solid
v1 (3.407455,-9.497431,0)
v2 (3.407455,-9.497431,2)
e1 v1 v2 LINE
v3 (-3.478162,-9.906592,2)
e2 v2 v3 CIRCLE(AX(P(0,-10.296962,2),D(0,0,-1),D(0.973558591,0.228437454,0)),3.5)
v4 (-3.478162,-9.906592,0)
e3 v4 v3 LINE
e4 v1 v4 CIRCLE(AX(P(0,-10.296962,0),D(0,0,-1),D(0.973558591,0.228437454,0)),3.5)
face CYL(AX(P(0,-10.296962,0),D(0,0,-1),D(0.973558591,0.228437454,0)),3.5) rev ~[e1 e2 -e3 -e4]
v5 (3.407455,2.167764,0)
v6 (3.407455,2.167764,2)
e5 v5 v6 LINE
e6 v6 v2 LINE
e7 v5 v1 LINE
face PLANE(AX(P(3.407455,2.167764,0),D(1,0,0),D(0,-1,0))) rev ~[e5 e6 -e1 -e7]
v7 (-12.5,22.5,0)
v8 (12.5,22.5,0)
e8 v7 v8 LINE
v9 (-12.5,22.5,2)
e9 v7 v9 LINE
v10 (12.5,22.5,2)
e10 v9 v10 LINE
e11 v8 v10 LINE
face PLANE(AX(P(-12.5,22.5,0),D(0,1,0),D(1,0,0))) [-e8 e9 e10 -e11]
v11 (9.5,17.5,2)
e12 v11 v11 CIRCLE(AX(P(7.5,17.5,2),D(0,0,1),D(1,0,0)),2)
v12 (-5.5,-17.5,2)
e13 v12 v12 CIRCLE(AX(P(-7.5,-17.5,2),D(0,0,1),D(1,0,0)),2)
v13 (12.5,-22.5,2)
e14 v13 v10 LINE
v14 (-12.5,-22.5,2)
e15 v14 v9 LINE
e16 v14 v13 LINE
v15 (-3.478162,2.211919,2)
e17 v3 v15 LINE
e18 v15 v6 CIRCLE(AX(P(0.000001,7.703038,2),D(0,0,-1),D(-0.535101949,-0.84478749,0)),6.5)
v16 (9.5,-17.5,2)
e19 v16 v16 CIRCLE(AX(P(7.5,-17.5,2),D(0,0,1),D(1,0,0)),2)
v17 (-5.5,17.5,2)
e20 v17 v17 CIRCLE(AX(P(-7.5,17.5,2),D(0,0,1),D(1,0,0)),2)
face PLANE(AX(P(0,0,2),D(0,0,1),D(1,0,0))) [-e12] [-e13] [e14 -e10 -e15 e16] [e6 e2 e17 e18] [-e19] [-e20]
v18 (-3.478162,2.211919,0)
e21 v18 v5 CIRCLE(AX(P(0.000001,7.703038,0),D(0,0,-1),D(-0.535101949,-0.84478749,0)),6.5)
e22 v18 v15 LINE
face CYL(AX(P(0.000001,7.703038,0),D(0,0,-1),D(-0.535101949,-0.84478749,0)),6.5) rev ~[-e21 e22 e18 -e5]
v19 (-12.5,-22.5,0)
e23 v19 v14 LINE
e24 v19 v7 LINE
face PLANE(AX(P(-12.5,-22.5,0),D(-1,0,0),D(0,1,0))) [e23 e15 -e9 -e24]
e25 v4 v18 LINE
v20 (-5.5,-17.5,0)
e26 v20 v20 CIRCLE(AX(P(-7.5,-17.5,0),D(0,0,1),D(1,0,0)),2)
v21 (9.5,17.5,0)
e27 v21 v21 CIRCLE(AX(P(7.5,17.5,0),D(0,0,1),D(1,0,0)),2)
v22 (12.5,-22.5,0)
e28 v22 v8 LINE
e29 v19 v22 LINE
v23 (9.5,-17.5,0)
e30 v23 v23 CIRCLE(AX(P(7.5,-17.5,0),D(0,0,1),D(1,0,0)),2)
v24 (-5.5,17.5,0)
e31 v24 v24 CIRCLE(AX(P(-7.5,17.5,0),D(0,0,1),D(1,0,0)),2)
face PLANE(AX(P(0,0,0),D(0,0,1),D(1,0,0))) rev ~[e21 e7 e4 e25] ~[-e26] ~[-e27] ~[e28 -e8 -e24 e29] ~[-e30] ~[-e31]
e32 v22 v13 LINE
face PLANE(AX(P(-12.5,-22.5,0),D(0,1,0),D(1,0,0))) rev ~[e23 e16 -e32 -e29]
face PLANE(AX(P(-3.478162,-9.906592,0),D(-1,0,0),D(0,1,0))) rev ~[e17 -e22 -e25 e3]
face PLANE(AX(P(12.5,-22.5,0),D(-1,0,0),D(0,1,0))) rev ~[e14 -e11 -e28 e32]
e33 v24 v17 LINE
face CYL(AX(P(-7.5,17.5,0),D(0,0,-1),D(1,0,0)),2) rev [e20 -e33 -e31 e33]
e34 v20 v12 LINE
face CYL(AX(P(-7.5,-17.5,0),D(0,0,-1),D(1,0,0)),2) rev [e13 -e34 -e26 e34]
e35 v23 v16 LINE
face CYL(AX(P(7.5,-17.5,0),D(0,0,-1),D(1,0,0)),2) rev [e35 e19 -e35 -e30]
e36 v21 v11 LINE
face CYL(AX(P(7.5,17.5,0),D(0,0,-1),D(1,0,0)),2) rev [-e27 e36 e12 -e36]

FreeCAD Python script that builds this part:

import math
import FreeCAD as App
import Part
import Sketcher
from FreeCAD import Vector
Q = App.Units.Quantity


def add_polygon(sketch, points):
    """Adds a closed chain of lines whose ends are joined by coincident constraints."""
    first, n = sketch.GeometryCount, len(points)
    for a, b in zip(points, points[1:] + points[:1]):
        sketch.addGeometry(Part.LineSegment(App.Vector(*a, 0), App.Vector(*b, 0)), False)
    for i in range(n):
        sketch.addConstraint(Sketcher.Constraint("Coincident", first + i, 2, first + (i + 1) % n, 1))

doc = App.newDocument("Part")
body = doc.addObject("PartDesign::Body", "Body")

# Sketch on XY plane
sketch1 = body.newObject("Sketcher::SketchObject", "Sketch")
sketch1.AttachmentSupport = (doc.getObject("XY_Plane"), [""])
sketch1.MapMode = "FlatFace"
add_polygon(sketch1, [(-12.5, 22.5), (-12.5, -22.5), (12.5, -22.5), (12.5, 22.5)])  # lines 0-3
sketch1.addGeometry(Part.Circle(Vector(-7.5, -17.5, 0), Vector(0, 0, 1), 2), False)  # 4
sketch1.addGeometry(Part.Circle(Vector(7.5, -17.5, 0), Vector(0, 0, 1), 2), False)  # 5
sketch1.addGeometry(Part.Circle(Vector(-7.5, 17.5, 0), Vector(0, 0, 1), 2), False)  # 6
sketch1.addGeometry(Part.LineSegment(Vector(-3.5, -9.9, 0), Vector(-3.5, 2.2, 0)), False)  # 7
sketch1.addGeometry(Part.ArcOfCircle(Part.Circle(Vector(0, 7.7, 0), Vector(0, 0, 1), 6.5), math.radians(-58), math.radians(238)), False)  # 8
sketch1.addGeometry(Part.LineSegment(Vector(3.4, 2.2, 0), Vector(3.4, -9.5, 0)), False)  # 9
sketch1.addGeometry(Part.ArcOfCircle(Part.Circle(Vector(0, -10.3, 0), Vector(0, 0, 1), 3.5), math.radians(174), math.radians(373)), False)  # 10
sketch1.addGeometry(Part.Circle(Vector(7.5, 17.5, 0), Vector(0, 0, 1), 2), False)  # 11
sketch1.addConstraint([
    Sketcher.Constraint("Coincident", 7, 2, 8, 2),
    Sketcher.Constraint("Coincident", 8, 1, 9, 1),
    Sketcher.Constraint("Coincident", 9, 2, 10, 2),
    Sketcher.Constraint("Coincident", 10, 1, 7, 1),
    Sketcher.Constraint("Vertical", 0),
    Sketcher.Constraint("Horizontal", 1),
    Sketcher.Constraint("Vertical", 2),
    Sketcher.Constraint("Horizontal", 3),
    Sketcher.Constraint("Vertical", 7),
    Sketcher.Constraint("Vertical", 9),
    Sketcher.Constraint("Equal", 4, 5),
    Sketcher.Constraint("Equal", 5, 6),
    Sketcher.Constraint("Equal", 6, 11),
    Sketcher.Constraint("Symmetric", 5, 3, 6, 3, -1, 1),
    Sketcher.Constraint("Symmetric", 4, 3, 11, 3, -1, 1),
    Sketcher.Constraint("Symmetric", 0, 2, 2, 2, -1, 1),
    Sketcher.Constraint("Symmetric", 4, 3, 5, 3, -2),
    Sketcher.Constraint("PointOnObject", 8, 3, -2),
    Sketcher.Constraint("PointOnObject", 10, 3, -2),
    Sketcher.Constraint("Diameter", 4, Q("4 mm")),
    Sketcher.Constraint("Radius", 8, Q("6.5 mm")),
    Sketcher.Constraint("Radius", 10, Q("3.5 mm")),
    Sketcher.Constraint("DistanceX", 1, 1, 1, 2, Q("25 mm")),
    Sketcher.Constraint("DistanceY", 0, 2, 0, 1, Q("45 mm")),
    Sketcher.Constraint("DistanceX", 4, 3, 5, 3, Q("15 mm")),
    Sketcher.Constraint("DistanceY", 4, 3, 6, 3, Q("35 mm")),
    Sketcher.Constraint("DistanceY", 10, 3, 8, 3, Q("18 mm")),
    Sketcher.Constraint("DistanceY", 7, 1, 7, 2, Q("12.118511 mm")),
    Sketcher.Constraint("DistanceY", 9, 2, 9, 1, Q("11.665195 mm")),
    Sketcher.Constraint("DistanceY", -1, 1, 7, 2, Q("2.211919 mm")),
])
pad1 = body.newObject("PartDesign::Pad", "Pad")
pad1.Profile = sketch1
pad1.Length = 2

doc.recompute()
